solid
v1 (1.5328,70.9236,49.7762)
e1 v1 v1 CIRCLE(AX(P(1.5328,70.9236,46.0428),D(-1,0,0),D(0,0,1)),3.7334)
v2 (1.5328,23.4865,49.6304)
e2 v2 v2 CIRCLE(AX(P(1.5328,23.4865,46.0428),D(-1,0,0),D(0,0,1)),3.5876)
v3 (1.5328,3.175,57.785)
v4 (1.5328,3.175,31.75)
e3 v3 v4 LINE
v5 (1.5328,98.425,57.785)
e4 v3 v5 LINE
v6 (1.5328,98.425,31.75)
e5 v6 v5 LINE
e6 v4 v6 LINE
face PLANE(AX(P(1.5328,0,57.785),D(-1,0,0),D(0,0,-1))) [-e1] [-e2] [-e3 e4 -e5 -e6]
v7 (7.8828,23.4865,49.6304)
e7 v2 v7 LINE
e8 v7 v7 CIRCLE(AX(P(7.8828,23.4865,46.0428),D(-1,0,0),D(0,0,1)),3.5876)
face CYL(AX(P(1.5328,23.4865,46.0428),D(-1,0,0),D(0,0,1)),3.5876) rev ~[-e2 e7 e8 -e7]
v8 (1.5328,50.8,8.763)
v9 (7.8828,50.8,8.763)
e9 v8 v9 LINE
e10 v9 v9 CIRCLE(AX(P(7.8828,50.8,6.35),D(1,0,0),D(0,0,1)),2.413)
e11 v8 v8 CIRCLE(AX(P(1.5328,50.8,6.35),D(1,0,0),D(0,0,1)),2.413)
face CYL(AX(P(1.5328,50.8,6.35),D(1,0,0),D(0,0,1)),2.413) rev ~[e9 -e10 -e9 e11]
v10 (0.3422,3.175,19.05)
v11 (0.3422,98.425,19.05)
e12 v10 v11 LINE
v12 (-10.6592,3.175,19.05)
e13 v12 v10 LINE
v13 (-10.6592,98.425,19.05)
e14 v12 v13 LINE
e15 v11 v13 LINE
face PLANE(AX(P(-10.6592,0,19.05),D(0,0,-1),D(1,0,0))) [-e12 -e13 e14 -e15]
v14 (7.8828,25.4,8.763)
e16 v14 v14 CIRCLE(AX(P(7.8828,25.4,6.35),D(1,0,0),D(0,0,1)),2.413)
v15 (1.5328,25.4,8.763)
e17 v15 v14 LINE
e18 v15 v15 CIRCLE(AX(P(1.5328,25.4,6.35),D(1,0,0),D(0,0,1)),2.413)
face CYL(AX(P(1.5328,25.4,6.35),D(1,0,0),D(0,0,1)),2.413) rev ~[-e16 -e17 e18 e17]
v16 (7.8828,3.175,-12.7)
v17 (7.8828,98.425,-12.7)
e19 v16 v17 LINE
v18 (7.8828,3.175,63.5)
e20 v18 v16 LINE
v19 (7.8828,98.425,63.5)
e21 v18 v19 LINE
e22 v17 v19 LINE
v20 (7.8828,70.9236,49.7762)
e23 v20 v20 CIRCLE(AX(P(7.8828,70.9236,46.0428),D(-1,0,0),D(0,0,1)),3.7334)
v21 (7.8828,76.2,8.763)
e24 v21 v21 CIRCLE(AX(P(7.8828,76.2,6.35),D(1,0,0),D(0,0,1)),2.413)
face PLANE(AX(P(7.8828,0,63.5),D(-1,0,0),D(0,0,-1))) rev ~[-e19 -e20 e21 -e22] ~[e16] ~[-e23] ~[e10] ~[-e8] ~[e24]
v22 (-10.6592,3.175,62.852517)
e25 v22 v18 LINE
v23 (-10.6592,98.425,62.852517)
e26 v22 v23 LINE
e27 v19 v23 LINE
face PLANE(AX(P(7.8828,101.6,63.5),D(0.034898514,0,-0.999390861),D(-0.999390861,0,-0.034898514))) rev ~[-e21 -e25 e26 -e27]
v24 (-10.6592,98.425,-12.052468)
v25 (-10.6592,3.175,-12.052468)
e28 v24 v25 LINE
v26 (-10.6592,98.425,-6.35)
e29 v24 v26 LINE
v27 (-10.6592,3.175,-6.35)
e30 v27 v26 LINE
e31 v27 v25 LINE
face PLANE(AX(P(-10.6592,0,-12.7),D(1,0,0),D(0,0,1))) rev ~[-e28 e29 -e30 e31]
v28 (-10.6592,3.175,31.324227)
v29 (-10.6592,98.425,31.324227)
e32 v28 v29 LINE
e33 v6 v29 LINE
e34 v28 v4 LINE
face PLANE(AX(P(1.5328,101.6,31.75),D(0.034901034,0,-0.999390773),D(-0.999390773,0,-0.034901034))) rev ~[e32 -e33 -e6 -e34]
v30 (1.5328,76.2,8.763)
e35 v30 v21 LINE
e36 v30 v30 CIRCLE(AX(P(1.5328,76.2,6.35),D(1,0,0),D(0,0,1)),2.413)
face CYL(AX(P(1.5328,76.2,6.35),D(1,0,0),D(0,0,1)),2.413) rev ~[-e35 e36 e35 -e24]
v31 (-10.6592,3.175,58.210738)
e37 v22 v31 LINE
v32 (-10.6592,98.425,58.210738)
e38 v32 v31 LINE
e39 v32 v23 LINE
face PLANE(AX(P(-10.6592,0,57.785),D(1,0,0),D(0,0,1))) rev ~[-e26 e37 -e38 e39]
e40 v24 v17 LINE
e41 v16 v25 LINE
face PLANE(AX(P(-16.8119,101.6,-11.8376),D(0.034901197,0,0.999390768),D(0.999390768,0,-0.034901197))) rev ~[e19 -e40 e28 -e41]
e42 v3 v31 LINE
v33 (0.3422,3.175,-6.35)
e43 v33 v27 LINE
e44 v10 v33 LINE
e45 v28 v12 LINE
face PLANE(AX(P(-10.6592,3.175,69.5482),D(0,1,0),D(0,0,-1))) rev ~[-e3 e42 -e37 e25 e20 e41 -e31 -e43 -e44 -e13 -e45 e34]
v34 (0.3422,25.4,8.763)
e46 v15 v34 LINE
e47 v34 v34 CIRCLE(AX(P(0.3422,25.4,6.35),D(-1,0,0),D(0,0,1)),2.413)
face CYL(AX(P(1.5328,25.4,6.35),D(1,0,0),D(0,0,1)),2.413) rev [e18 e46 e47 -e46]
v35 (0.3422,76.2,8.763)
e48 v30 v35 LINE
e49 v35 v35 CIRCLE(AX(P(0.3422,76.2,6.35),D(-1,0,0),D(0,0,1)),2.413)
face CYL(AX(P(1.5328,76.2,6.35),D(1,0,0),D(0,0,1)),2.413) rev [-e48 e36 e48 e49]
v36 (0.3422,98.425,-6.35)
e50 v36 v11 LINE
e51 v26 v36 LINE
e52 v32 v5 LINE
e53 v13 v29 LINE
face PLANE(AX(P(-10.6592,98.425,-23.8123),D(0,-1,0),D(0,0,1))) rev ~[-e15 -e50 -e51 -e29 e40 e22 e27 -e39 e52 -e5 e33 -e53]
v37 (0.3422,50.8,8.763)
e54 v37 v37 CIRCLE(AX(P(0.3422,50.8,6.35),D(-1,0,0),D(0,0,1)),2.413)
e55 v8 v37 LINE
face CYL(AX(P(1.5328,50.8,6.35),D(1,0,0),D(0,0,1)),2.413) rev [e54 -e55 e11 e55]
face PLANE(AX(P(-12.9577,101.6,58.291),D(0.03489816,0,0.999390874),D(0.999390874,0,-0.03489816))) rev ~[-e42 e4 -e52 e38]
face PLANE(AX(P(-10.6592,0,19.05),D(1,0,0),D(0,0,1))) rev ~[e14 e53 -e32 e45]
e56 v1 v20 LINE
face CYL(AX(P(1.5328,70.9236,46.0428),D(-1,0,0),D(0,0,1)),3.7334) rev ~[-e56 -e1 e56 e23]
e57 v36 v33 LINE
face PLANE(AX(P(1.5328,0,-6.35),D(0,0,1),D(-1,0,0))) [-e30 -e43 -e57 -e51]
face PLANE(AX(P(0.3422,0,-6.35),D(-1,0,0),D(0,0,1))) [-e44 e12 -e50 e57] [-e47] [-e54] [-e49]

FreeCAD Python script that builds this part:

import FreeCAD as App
import Part
import Sketcher

V = App.Vector
Q = App.Units.Quantity


def add_polygon(sketch, points):
    """Adds a closed chain of lines whose ends are joined by coincident constraints."""
    first, n = sketch.GeometryCount, len(points)
    for a, b in zip(points, points[1:] + points[:1]):
        sketch.addGeometry(Part.LineSegment(App.Vector(*a, 0), App.Vector(*b, 0)), False)
    for i in range(n):
        sketch.addConstraint(Sketcher.Constraint("Coincident", first + i, 2, first + (i + 1) % n, 1))

doc = App.newDocument("Part")
body = doc.addObject("PartDesign::Body", "Body")

sketch1 = doc.addObject("Sketcher::SketchObject", "Sketch")
body.addObject(sketch1)
sketch1.AttachmentSupport = (doc.XZ_Plane, [""])
sketch1.MapMode = "FlatFace"
add_polygon(sketch1, [(-11, 58), (-11, 64), (8, 64), (8, -13), (-11, -13), (-11, -6), (2, -6), (2, 19), (-11, 19), (-11, 32), (2, 32), (2, 58)])
sketch1.addConstraint([
    Sketcher.Constraint("Vertical", 0),
    Sketcher.Constraint("Horizontal", 1),
    Sketcher.Constraint("Vertical", 2),
    Sketcher.Constraint("Horizontal", 3),
    Sketcher.Constraint("Vertical", 4),
    Sketcher.Constraint("Horizontal", 5),
    Sketcher.Constraint("Vertical", 6),
    Sketcher.Constraint("Horizontal", 7),
    Sketcher.Constraint("Vertical", 8),
    Sketcher.Constraint("Horizontal", 9),
    Sketcher.Constraint("Vertical", 10),
    Sketcher.Constraint("Horizontal", 11),
    Sketcher.Constraint("Vertical", 0, 2, 3, 2),
    Sketcher.Constraint("Vertical", 4, 2, 7, 2),
    Sketcher.Constraint("Vertical", 6, 2, 9, 2),
    Sketcher.Constraint("DistanceY", 6, 1, 6, 2, Q("1 in")),
    Sketcher.Constraint("DistanceY", 8, 1, 8, 2, Q("0.5 in")),
    Sketcher.Constraint("DistanceX", 1, 1, 1, 2, Q("0.73 in")),
    Sketcher.Constraint("DistanceY", 4, 1, 4, 2, Q("0.25 in")),
    Sketcher.Constraint("DistanceY", 2, 2, -1, 1, Q("0.5 in")),
    Sketcher.Constraint("DistanceY", 0, 1, 0, 2, Q("0.225 in")),
    Sketcher.Constraint("DistanceY", 2, 2, 2, 1, Q("3 in")),
    Sketcher.Constraint("DistanceX", 5, 2, 2, 2, Q("0.25 in")),
    Sketcher.Constraint("DistanceX", 0, 2, -1, 1, Q("10.6592 mm")),
])
pad1 = doc.addObject("PartDesign::Pad", "Pad")
body.addObject(pad1)
pad1.Profile = sketch1
pad1.Length = Q("4 in")
pad1.Reversed = True

sketch2 = doc.addObject("Sketcher::SketchObject", "Sketch001")
body.addObject(sketch2)
sketch2.AttachmentSupport = (doc.YZ_Plane, [""])
sketch2.MapMode = "FlatFace"
sketch2.AttachmentOffset = App.Placement(V(0, 0, 1.5328), App.Rotation())
sketch2.addGeometry([
    Part.Circle(V(25.4, 6.3, 0), V(0, 0, 1), 2.4),
    Part.Circle(V(50.8, 6.3, 0), V(0, 0, 1), 2.4),
    Part.Circle(V(76.2, 6.3, 0), V(0, 0, 1), 2.4),
], False)
sketch2.addConstraint([
    Sketcher.Constraint("Equal", 0, 1),
    Sketcher.Constraint("Equal", 1, 2),
    Sketcher.Constraint("Horizontal", 0, 3, 1, 3),
    Sketcher.Constraint("Horizontal", 1, 3, 2, 3),
    Sketcher.Constraint("Diameter", 0, Q("0.19 in")),
    Sketcher.Constraint("DistanceX", -1, 1, 0, 3, Q("1 in")),
    Sketcher.Constraint("DistanceX", -1, 1, 1, 3, Q("2 in")),
    Sketcher.Constraint("DistanceX", -1, 1, 2, 3, Q("3 in")),
    Sketcher.Constraint("DistanceY", -1, 1, 0, 3, Q("0.25 in")),
])
doc.recompute()
hole = doc.addObject("PartDesign::Hole", "Hole")
body.addObject(hole)
hole.Profile = sketch2
hole.ThreadType = "None"
hole.Diameter = Q("0.19 in")
hole.DepthType = "Dimension"
hole.Depth = Q("1 in")
hole.DrillPoint = "Angled"
hole.DrillPointAngle = 118
hole.Reversed = True

sketch3 = doc.addObject("Sketcher::SketchObject", "Sketch002")
body.addObject(sketch3)
sketch3.AttachmentSupport = (doc.XZ_Plane, [""])
sketch3.MapMode = "FlatFace"
sketch3.AttachmentOffset = App.Placement(V(0, 0, -4 * 25.4), App.Rotation())
add_polygon(sketch3, [(-10.79, 31.75), (1.53, 31.75), (-10.79, 31.32)])
sketch3.addConstraint([
    Sketcher.Constraint("Horizontal", 0),
    Sketcher.Constraint("Vertical", 2),
    Sketcher.Constraint("Angle", 1, Q("-178 deg")),
    Sketcher.Constraint("DistanceY", -1, 1, 0, 2, Q("1.25 in")),
    Sketcher.Constraint("DistanceX", 0, 1, 0, 2, Q("12.3245 mm")),
    Sketcher.Constraint("DistanceX", -1, 1, 0, 2, Q("1.5328 mm")),
])
pocket1 = doc.addObject("PartDesign::Pocket", "Pocket")
body.addObject(pocket1)
pocket1.Profile = sketch3
pocket1.Length = Q("4.375 in")
pocket1.Reversed = True

sketch4 = doc.addObject("Sketcher::SketchObject", "Sketch003")
body.addObject(sketch4)
sketch4.AttachmentSupport = (doc.XZ_Plane, [""])
sketch4.MapMode = "FlatFace"
sketch4.AttachmentOffset = App.Placement(V(0, 0, -4 * 25.4), App.Rotation())
add_polygon(sketch4, [(-13, 58.3), (1.5, 57.8), (-13, 57.8)])
sketch4.addConstraint([
    Sketcher.Constraint("Horizontal", 1),
    Sketcher.Constraint("Vertical", 2),
    Sketcher.Constraint("Angle", 0, Q("-2 deg")),
    Sketcher.Constraint("DistanceX", 1, 2, 1, 1, Q("0.5705 in")),
    Sketcher.Constraint("DistanceY", -1, 1, 0, 2, Q("2.275 in")),
    Sketcher.Constraint("DistanceX", -1, 1, 0, 2, Q("1.5328 mm")),
])
pocket2 = doc.addObject("PartDesign::Pocket", "Pocket001")
body.addObject(pocket2)
pocket2.Profile = sketch4
pocket2.Length = Q("4.6875 in")
pocket2.Reversed = True

sketch5 = doc.addObject("Sketcher::SketchObject", "Sketch004")
body.addObject(sketch5)
sketch5.AttachmentSupport = (doc.XZ_Plane, [""])
sketch5.MapMode = "FlatFace"
sketch5.AttachmentOffset = App.Placement(V(0, 0, -4 * 25.4), App.Rotation())
add_polygon(sketch5, [(-13, 63.5), (7.9, 63.5), (-13, 62.8)])
sketch5.addConstraint([
    Sketcher.Constraint("Horizontal", 0),
    Sketcher.Constraint("Angle", 1, Q("-178 deg")),
    Sketcher.Constraint("DistanceY", -1, 1, 0, 2, Q("2.5 in")),
    Sketcher.Constraint("DistanceX", 0, 1, 0, 2, Q("0.8222 in")),
    Sketcher.Constraint("Distance", 1, Q("20.9379 mm")),
    Sketcher.Constraint("DistanceX", -1, 1, 0, 2, Q("7.8828 mm")),
])
pocket3 = doc.addObject("PartDesign::Pocket", "Pocket002")
body.addObject(pocket3)
pocket3.Profile = sketch5
pocket3.Length = Q("7.75 in")
pocket3.Reversed = True

sketch6 = doc.addObject("Sketcher::SketchObject", "Sketch005")
body.addObject(sketch6)
sketch6.AttachmentSupport = (doc.XZ_Plane, [""])
sketch6.MapMode = "FlatFace"
sketch6.AttachmentOffset = App.Placement(V(0, 0, -4 * 25.4), App.Rotation())
add_polygon(sketch6, [(-16.8, -11.8), (7.9, -12.7), (-16.8, -12.7)])
sketch6.addConstraint([
    Sketcher.Constraint("Horizontal", 1),
    Sketcher.Constraint("Vertical", 2),
    Sketcher.Constraint("Angle", 0, Q("-2 deg")),
    Sketcher.Constraint("DistanceY", 0, 2, -1, 1, Q("0.5 in")),
    Sketcher.Constraint("DistanceX", 1, 2, 1, 1, Q("24.6947 mm")),
    Sketcher.Constraint("DistanceX", -1, 1, 0, 2, Q("7.8828 mm")),
])
pocket4 = doc.addObject("PartDesign::Pocket", "Pocket003")
body.addObject(pocket4)
pocket4.Profile = sketch6
pocket4.Length = Q("13.1875 in")
pocket4.Reversed = True

sketch7 = doc.addObject("Sketcher::SketchObject", "Sketch006")
body.addObject(sketch7)
sketch7.AttachmentSupport = (doc.YZ_Plane, [""])
sketch7.MapMode = "FlatFace"
sketch7.AttachmentOffset = App.Placement(V(0, 0, 1.5328), App.Rotation())
add_polygon(sketch7, [(101.6, -6.3), (0, -6.3), (0, 19.1), (101.6, 19.1)])
sketch7.addGeometry(Part.Circle(V(25.4, 6.3, 0), V(0, 0, 1), 2.4), False)
sketch7.addGeometry(Part.Circle(V(50.8, 6.3, 0), V(0, 0, 1), 2.4), False)
sketch7.addGeometry(Part.Circle(V(76.2, 6.3, 0), V(0, 0, 1), 2.4), False)
sketch7.addConstraint([
    Sketcher.Constraint("Horizontal", 0),
    Sketcher.Constraint("Vertical", 1),
    Sketcher.Constraint("Horizontal", 2),
    Sketcher.Constraint("Vertical", 3),
    Sketcher.Constraint("Equal", 4, 5),
    Sketcher.Constraint("Equal", 5, 6),
    Sketcher.Constraint("PointOnObject", 0, 2, -2),
    Sketcher.Constraint("Horizontal", 4, 3, 5, 3),
    Sketcher.Constraint("Horizontal", 5, 3, 6, 3),
    Sketcher.Constraint("Diameter", 4, Q("0.19 in")),
    Sketcher.Constraint("DistanceX", 0, 2, 0, 1, Q("4 in")),
    Sketcher.Constraint("DistanceY", 1, 1, 1, 2, Q("1 in")),
    Sketcher.Constraint("DistanceX", -1, 1, 4, 3, Q("1 in")),
    Sketcher.Constraint("DistanceX", -1, 1, 5, 3, Q("2 in")),
    Sketcher.Constraint("DistanceX", -1, 1, 6, 3, Q("3 in")),
    Sketcher.Constraint("DistanceY", 0, 2, 4, 3, Q("0.5 in")),
    Sketcher.Constraint("DistanceY", -1, 1, 4, 3, Q("0.25 in")),
])
pad2 = doc.addObject("PartDesign::Pad", "Pad001")
body.addObject(pad2)
pad2.Profile = sketch7
pad2.Length = Q("0.046874 in")
pad2.Reversed = True

sketch8 = doc.addObject("Sketcher::SketchObject", "Sketch007")
body.addObject(sketch8)
sketch8.AttachmentSupport = (doc.YZ_Plane, [""])
sketch8.MapMode = "FlatFace"
sketch8.AttachmentOffset = App.Placement(V(0, 0, 1.5328), App.Rotation())
sketch8.addGeometry([
    Part.Circle(V(23.5, 46, 0), V(0, 0, 1), 3.6),
    Part.Circle(V(70.9, 46, 0), V(0, 0, 1), 3.7),
], False)
sketch8.addConstraint([
    Sketcher.Constraint("Horizontal", 0, 3, 1, 3),
    Sketcher.Constraint("Diameter", 0, Q("0.2825 in")),
    Sketcher.Constraint("Diameter", 1, Q("7.4668 mm")),
    Sketcher.Constraint("DistanceY", -1, 1, 0, 3, Q("1.8127 in")),
    Sketcher.Constraint("DistanceX", 0, 3, 1, 3, Q("1.8676 in")),
    Sketcher.Constraint("DistanceX", -1, 1, 0, 3, Q("23.4865 mm")),
])
pocket5 = doc.addObject("PartDesign::Pocket", "Pocket004")
body.addObject(pocket5)
pocket5.Profile = sketch8
pocket5.Length = Q("2.1875 in")
pocket5.Reversed = True

sketch9 = doc.addObject("Sketcher::SketchObject", "Sketch008")
body.addObject(sketch9)
sketch9.AttachmentSupport = (doc.YZ_Plane, [""])
sketch9.MapMode = "FlatFace"
sketch9.AttachmentOffset = App.Placement(V(0, 0, -10.6592), App.Rotation())
add_polygon(sketch9, [(3, -27), (-15, -27), (-15, 70), (3, 70)])
add_polygon(sketch9, [(110, -24), (98, -24), (98, 69), (110, 69)])
sketch9.addConstraint([
    Sketcher.Constraint("Horizontal", 0),
    Sketcher.Constraint("Vertical", 1),
    Sketcher.Constraint("Horizontal", 2),
    Sketcher.Constraint("Vertical", 3),
    Sketcher.Constraint("Horizontal", 4),
    Sketcher.Constraint("Vertical", 5),
    Sketcher.Constraint("Horizontal", 6),
    Sketcher.Constraint("Vertical", 7),
    Sketcher.Constraint("DistanceX", -1, 1, 2, 2, Q("0.125 in")),
    Sketcher.Constraint("DistanceX", 3, 2, 4, 2, Q("3.75 in")),
    Sketcher.Constraint("DistanceX", 4, 2, 4, 1, Q("0.4619 in")),
    Sketcher.Constraint("DistanceY", 1, 1, 1, 2, Q("3.8031 in")),
    Sketcher.Constraint("DistanceY", 4, 2, -1, 1, Q("0.9375 in")),
    Sketcher.Constraint("DistanceX", 0, 2, 0, 1, Q("18.218 mm")),
    Sketcher.Constraint("DistanceY", 5, 1, 5, 2, Q("92.551 mm")),
    Sketcher.Constraint("DistanceY", 4, 2, 2, 2, Q("3.6756 in")),
])
pocket6 = doc.addObject("PartDesign::Pocket", "Pocket005")
body.addObject(pocket6)
pocket6.Profile = sketch9
pocket6.Length = Q("2 in")
pocket6.Reversed = True

doc.recompute()
